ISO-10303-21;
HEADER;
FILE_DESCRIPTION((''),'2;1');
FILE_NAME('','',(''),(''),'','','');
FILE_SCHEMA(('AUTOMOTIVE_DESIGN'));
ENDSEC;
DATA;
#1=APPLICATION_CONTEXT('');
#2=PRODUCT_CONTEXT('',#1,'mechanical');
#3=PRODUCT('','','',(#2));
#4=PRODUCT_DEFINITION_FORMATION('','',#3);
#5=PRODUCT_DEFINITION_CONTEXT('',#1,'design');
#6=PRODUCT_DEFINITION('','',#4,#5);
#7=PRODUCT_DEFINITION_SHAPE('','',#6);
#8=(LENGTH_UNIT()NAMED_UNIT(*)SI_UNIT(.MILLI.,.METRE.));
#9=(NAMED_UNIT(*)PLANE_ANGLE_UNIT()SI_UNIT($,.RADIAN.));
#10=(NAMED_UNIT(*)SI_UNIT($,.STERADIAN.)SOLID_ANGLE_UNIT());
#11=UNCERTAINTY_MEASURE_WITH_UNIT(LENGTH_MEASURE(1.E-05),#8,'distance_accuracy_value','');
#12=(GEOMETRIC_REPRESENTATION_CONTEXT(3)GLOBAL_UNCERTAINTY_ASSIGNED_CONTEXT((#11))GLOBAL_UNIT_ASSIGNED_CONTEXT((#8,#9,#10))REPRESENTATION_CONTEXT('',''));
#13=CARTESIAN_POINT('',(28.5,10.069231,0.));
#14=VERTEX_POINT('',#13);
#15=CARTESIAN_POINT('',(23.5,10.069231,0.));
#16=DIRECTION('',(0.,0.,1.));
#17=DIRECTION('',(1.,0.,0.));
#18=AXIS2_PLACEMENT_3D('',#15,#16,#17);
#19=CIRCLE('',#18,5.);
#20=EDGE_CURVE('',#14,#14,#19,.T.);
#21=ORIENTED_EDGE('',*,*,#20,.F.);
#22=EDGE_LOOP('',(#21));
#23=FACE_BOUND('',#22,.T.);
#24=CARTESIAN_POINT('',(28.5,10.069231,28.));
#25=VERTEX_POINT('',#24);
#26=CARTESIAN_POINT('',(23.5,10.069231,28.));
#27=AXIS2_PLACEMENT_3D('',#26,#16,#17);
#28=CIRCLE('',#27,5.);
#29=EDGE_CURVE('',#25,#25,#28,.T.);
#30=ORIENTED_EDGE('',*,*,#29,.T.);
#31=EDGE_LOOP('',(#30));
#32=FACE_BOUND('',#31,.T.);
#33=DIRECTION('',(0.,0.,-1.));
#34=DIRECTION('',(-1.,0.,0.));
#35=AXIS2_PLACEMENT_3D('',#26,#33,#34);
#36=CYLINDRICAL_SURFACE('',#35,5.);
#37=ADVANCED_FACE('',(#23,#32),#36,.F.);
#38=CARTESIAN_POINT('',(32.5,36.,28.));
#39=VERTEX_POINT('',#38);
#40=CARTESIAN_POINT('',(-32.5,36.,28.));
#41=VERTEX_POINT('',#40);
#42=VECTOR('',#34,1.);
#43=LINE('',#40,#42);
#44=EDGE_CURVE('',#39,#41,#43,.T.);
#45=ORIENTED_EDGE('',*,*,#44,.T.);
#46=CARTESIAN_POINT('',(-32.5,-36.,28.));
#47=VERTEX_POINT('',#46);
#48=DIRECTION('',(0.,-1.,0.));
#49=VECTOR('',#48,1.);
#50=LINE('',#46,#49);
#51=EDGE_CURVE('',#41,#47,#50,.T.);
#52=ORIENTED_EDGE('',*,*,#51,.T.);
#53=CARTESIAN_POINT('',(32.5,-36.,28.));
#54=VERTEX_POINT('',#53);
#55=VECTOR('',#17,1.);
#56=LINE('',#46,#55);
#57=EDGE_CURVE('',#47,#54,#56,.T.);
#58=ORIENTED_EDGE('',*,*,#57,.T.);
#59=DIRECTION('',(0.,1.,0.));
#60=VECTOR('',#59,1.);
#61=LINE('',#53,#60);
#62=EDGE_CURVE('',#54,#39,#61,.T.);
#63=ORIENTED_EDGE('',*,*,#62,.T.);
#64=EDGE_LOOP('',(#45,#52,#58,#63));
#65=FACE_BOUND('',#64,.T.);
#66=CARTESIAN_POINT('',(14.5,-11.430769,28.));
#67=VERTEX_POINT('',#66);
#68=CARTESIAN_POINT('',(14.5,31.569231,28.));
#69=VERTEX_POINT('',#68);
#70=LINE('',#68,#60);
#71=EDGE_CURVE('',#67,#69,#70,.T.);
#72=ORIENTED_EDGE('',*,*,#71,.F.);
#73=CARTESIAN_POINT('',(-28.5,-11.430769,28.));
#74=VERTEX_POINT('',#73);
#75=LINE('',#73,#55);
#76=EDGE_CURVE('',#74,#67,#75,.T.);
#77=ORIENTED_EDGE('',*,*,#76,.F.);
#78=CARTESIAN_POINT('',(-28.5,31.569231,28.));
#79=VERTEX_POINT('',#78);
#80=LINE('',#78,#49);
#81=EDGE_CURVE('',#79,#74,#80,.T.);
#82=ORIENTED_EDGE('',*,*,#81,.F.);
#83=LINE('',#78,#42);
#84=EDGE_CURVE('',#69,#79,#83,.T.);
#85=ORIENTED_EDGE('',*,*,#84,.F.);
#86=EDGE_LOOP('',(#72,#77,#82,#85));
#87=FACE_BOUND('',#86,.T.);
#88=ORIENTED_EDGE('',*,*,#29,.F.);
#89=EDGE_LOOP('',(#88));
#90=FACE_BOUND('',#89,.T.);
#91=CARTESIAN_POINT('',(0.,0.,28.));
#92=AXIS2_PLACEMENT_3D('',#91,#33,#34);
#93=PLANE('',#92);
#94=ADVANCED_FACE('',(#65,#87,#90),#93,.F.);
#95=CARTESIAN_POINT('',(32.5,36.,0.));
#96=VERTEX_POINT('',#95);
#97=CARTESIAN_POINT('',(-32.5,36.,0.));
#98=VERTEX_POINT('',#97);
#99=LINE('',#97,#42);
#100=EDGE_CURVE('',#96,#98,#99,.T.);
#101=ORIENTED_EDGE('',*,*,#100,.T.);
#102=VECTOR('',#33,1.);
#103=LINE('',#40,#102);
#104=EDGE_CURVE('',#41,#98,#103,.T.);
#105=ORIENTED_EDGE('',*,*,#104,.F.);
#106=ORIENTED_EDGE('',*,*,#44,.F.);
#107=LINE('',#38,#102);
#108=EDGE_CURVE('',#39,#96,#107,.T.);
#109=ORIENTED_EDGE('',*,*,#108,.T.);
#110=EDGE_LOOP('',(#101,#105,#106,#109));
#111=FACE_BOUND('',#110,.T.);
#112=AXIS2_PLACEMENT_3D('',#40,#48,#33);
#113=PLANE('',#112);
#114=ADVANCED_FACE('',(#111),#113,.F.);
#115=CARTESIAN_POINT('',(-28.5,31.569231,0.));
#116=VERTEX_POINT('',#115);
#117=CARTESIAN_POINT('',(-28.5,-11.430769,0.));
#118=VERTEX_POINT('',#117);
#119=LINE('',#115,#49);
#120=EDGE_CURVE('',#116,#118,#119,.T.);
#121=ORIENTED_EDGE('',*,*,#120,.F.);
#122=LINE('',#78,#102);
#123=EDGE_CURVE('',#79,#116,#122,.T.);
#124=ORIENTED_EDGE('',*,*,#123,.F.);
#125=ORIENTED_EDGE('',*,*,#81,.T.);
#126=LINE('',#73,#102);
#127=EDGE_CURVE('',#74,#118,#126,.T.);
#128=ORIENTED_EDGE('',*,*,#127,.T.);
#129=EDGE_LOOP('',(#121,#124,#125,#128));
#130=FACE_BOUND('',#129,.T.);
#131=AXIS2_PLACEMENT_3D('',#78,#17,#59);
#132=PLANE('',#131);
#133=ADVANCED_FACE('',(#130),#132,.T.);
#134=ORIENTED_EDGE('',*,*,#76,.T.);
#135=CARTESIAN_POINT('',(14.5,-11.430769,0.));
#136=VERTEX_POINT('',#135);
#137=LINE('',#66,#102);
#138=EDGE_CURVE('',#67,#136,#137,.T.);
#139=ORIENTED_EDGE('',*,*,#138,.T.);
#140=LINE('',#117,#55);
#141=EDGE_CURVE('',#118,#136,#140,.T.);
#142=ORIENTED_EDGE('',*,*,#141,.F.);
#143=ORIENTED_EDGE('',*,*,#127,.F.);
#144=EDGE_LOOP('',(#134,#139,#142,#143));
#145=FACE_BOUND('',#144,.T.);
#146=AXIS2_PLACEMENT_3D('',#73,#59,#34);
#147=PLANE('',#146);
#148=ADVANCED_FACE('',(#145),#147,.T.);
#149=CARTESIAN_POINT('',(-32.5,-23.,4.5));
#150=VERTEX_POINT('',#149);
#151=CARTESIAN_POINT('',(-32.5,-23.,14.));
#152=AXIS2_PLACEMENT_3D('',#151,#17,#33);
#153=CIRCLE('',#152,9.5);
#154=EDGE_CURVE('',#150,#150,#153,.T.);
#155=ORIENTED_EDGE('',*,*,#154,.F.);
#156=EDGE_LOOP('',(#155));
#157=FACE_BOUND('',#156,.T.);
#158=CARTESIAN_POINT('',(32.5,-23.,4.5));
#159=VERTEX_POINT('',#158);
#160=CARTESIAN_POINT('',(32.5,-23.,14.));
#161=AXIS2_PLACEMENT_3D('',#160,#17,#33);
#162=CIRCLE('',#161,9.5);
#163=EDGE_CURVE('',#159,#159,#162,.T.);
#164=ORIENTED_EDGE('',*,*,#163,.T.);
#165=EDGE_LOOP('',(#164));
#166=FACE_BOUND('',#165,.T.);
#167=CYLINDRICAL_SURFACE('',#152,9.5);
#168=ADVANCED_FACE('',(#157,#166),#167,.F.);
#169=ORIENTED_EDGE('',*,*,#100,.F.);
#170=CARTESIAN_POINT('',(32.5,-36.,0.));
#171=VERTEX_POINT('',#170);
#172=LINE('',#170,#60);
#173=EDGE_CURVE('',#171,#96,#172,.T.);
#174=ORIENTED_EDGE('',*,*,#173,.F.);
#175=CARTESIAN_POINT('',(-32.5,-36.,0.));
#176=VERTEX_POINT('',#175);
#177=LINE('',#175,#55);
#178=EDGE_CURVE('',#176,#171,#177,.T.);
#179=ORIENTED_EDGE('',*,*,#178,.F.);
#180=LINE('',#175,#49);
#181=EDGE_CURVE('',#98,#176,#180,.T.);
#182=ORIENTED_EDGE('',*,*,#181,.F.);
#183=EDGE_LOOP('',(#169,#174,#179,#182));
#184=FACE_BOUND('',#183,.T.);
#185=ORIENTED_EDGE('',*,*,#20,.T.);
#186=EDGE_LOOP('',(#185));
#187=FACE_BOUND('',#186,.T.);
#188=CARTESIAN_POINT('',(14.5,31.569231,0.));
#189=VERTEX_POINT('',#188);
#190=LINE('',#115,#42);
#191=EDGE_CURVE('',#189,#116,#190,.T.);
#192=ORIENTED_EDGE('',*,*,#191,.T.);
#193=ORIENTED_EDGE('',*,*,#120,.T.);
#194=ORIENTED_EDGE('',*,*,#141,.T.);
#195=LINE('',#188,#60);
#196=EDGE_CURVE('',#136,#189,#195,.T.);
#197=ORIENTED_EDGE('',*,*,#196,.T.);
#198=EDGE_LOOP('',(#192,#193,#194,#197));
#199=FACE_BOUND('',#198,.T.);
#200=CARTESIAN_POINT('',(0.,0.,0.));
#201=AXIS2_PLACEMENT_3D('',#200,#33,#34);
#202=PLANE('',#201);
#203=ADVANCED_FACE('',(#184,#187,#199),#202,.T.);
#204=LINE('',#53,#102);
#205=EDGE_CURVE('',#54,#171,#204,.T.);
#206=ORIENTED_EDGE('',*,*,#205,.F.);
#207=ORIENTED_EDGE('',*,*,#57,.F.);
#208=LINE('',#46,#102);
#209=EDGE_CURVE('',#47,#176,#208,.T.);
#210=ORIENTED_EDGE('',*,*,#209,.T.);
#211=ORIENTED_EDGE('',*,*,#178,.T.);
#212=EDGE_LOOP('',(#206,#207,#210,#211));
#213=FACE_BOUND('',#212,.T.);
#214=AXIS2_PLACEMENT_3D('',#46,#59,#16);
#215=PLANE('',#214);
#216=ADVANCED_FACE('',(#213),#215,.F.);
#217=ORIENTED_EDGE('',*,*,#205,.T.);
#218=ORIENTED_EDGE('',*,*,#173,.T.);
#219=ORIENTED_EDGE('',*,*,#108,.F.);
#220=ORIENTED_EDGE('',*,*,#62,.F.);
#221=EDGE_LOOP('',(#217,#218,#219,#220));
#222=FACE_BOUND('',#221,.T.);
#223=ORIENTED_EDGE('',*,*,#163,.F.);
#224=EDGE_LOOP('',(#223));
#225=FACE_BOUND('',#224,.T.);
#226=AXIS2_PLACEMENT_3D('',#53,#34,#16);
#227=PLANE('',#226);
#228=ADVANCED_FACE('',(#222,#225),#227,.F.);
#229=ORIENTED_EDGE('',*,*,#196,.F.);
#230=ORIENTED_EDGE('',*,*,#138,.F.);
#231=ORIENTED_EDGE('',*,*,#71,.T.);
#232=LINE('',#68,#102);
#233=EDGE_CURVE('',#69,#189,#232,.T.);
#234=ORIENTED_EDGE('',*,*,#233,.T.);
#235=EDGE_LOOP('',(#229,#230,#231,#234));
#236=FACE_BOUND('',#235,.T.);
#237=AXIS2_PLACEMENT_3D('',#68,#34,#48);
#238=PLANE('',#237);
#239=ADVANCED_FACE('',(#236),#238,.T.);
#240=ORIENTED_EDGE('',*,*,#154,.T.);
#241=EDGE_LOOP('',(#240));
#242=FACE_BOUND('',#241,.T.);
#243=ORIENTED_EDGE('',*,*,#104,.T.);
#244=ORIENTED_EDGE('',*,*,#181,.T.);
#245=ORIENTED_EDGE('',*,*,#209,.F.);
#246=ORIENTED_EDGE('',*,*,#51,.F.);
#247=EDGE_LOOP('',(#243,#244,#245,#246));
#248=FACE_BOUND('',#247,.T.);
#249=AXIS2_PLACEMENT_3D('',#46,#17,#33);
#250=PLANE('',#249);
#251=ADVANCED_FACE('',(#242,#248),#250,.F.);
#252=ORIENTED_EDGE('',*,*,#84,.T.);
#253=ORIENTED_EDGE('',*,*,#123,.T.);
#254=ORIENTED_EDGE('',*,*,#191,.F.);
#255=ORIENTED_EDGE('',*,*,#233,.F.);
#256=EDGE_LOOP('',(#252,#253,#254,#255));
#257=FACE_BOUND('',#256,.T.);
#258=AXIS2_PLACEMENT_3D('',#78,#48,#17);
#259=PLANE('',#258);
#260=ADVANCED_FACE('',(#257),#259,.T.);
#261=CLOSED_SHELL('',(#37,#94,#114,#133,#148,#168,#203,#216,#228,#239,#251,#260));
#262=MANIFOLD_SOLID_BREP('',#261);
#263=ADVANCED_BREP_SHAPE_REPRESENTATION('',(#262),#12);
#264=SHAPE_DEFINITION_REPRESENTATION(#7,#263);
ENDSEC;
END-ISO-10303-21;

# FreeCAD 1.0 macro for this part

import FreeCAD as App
import Part
import Sketcher
Q = App.Units.Quantity

doc = App.newDocument("Part")
params = doc.addObject("Spreadsheet::Sheet", "Params")
for row, (alias, value) in enumerate([
    ("sketch1_diameter", "10 mm"),
    ("sketch1_width", "65 mm"),
    ("sketch1_width2", "43 mm"),
    ("sketch1_height", "72 mm"),
    ("pad1_length", "28 mm"),
    ("sketch2_diameter", "19 mm"),
], start=1):
    params.set(f"A{row}", alias)
    params.set(f"B{row}", "=" + value)
    params.setAlias(f"B{row}", alias)

body = doc.addObject("PartDesign::Body", "Body")

# Sketch on XY plane
sketch1 = body.newObject("Sketcher::SketchObject", "Sketch")
sketch1.AttachmentSupport = (doc.getObject("XY_Plane"), [""])
sketch1.MapMode = "FlatFace"
sketch1.addGeometry(Part.LineSegment(App.Vector(-32, 36, 0), App.Vector(-32, -36, 0)), False)
sketch1.addGeometry(Part.LineSegment(App.Vector(-32, -36, 0), App.Vector(32, -36, 0)), False)
sketch1.addGeometry(Part.LineSegment(App.Vector(32, -36, 0), App.Vector(32, 36, 0)), False)
sketch1.addGeometry(Part.LineSegment(App.Vector(32, 36, 0), App.Vector(-32, 36, 0)), False)
sketch1.addGeometry(Part.LineSegment(App.Vector(14, -11, 0), App.Vector(-28, -11, 0)), False)
sketch1.addGeometry(Part.LineSegment(App.Vector(-28, -11, 0), App.Vector(-28, 32, 0)), False)
sketch1.addGeometry(Part.LineSegment(App.Vector(-28, 32, 0), App.Vector(14, 32, 0)), False)
sketch1.addGeometry(Part.LineSegment(App.Vector(14, 32, 0), App.Vector(14, -11, 0)), False)
sketch1.addGeometry(Part.Circle(App.Vector(24, 10, 0), App.Vector(0, 0, 1), 5), False)
sketch1.addConstraint(Sketcher.Constraint("Coincident", 0, 2, 1, 1))
sketch1.addConstraint(Sketcher.Constraint("Coincident", 1, 2, 2, 1))
sketch1.addConstraint(Sketcher.Constraint("Coincident", 2, 2, 3, 1))
sketch1.addConstraint(Sketcher.Constraint("Coincident", 3, 2, 0, 1))
sketch1.addConstraint(Sketcher.Constraint("Coincident", 4, 2, 5, 1))
sketch1.addConstraint(Sketcher.Constraint("Coincident", 5, 2, 6, 1))
sketch1.addConstraint(Sketcher.Constraint("Coincident", 6, 2, 7, 1))
sketch1.addConstraint(Sketcher.Constraint("Coincident", 7, 2, 4, 1))
sketch1.addConstraint(Sketcher.Constraint("Vertical", 0))
sketch1.addConstraint(Sketcher.Constraint("Horizontal", 1))
sketch1.addConstraint(Sketcher.Constraint("Vertical", 2))
sketch1.addConstraint(Sketcher.Constraint("Horizontal", 3))
sketch1.addConstraint(Sketcher.Constraint("Horizontal", 4))
sketch1.addConstraint(Sketcher.Constraint("Vertical", 5))
sketch1.addConstraint(Sketcher.Constraint("Horizontal", 6))
sketch1.addConstraint(Sketcher.Constraint("Vertical", 7))
sketch1.addConstraint(Sketcher.Constraint("Symmetric", 0, 2, 2, 2, -1, 1))
sketch1.addConstraint(Sketcher.Constraint("Equal", 6, 5))
sketch1.addConstraint(Sketcher.Constraint("Diameter", 8, Q("10 mm")))
sketch1.addConstraint(Sketcher.Constraint("DistanceX", 1, 1, 1, 2, Q("65 mm")))
sketch1.addConstraint(Sketcher.Constraint("DistanceX", 4, 2, 4, 1, Q("43 mm")))
sketch1.addConstraint(Sketcher.Constraint("DistanceY", 0, 2, 0, 1, Q("72 mm")))
sketch1.addConstraint(Sketcher.Constraint("DistanceX", 0, 2, 8, 3, Q("56 mm")))
sketch1.addConstraint(Sketcher.Constraint("DistanceX", 0, 2, 4, 2, Q("4 mm")))
sketch1.addConstraint(Sketcher.Constraint("DistanceY", 4, 2, 8, 3, Q("21.5 mm")))
sketch1.addConstraint(Sketcher.Constraint("DistanceY", -1, 1, 8, 3, Q("10.069231 mm")))
sketch1.setExpression("Constraints[18]", "Params.sketch1_diameter")
sketch1.setExpression("Constraints[19]", "Params.sketch1_width")
sketch1.setExpression("Constraints[20]", "Params.sketch1_width2")
sketch1.setExpression("Constraints[21]", "Params.sketch1_height")
pad1 = body.newObject("PartDesign::Pad", "Pad")
pad1.Profile = sketch1
pad1.setExpression("Length", "Params.pad1_length")

# Sketch on YZ plane
sketch2 = body.newObject("Sketcher::SketchObject", "Sketch001")
sketch2.AttachmentSupport = (doc.getObject("YZ_Plane"), [""])
sketch2.MapMode = "FlatFace"
sketch2.AttachmentOffset = App.Placement(App.Vector(0, 0, 32.5), App.Rotation())
sketch2.addGeometry(Part.Circle(App.Vector(-23, 14, 0), App.Vector(0, 0, 1), 10), False)
sketch2.addConstraint(Sketcher.Constraint("Diameter", 0, Q("19 mm")))
sketch2.addConstraint(Sketcher.Constraint("DistanceX", 0, 3, -1, 1, Q("23 mm")))
sketch2.addConstraint(Sketcher.Constraint("DistanceY", -1, 1, 0, 3, Q("14 mm")))
sketch2.setExpression("Constraints[0]", "Params.sketch2_diameter")
pocket1 = body.newObject("PartDesign::Pocket", "Pocket")
pocket1.Profile = sketch2
pocket1.Type = "ThroughAll"

doc.recompute()
